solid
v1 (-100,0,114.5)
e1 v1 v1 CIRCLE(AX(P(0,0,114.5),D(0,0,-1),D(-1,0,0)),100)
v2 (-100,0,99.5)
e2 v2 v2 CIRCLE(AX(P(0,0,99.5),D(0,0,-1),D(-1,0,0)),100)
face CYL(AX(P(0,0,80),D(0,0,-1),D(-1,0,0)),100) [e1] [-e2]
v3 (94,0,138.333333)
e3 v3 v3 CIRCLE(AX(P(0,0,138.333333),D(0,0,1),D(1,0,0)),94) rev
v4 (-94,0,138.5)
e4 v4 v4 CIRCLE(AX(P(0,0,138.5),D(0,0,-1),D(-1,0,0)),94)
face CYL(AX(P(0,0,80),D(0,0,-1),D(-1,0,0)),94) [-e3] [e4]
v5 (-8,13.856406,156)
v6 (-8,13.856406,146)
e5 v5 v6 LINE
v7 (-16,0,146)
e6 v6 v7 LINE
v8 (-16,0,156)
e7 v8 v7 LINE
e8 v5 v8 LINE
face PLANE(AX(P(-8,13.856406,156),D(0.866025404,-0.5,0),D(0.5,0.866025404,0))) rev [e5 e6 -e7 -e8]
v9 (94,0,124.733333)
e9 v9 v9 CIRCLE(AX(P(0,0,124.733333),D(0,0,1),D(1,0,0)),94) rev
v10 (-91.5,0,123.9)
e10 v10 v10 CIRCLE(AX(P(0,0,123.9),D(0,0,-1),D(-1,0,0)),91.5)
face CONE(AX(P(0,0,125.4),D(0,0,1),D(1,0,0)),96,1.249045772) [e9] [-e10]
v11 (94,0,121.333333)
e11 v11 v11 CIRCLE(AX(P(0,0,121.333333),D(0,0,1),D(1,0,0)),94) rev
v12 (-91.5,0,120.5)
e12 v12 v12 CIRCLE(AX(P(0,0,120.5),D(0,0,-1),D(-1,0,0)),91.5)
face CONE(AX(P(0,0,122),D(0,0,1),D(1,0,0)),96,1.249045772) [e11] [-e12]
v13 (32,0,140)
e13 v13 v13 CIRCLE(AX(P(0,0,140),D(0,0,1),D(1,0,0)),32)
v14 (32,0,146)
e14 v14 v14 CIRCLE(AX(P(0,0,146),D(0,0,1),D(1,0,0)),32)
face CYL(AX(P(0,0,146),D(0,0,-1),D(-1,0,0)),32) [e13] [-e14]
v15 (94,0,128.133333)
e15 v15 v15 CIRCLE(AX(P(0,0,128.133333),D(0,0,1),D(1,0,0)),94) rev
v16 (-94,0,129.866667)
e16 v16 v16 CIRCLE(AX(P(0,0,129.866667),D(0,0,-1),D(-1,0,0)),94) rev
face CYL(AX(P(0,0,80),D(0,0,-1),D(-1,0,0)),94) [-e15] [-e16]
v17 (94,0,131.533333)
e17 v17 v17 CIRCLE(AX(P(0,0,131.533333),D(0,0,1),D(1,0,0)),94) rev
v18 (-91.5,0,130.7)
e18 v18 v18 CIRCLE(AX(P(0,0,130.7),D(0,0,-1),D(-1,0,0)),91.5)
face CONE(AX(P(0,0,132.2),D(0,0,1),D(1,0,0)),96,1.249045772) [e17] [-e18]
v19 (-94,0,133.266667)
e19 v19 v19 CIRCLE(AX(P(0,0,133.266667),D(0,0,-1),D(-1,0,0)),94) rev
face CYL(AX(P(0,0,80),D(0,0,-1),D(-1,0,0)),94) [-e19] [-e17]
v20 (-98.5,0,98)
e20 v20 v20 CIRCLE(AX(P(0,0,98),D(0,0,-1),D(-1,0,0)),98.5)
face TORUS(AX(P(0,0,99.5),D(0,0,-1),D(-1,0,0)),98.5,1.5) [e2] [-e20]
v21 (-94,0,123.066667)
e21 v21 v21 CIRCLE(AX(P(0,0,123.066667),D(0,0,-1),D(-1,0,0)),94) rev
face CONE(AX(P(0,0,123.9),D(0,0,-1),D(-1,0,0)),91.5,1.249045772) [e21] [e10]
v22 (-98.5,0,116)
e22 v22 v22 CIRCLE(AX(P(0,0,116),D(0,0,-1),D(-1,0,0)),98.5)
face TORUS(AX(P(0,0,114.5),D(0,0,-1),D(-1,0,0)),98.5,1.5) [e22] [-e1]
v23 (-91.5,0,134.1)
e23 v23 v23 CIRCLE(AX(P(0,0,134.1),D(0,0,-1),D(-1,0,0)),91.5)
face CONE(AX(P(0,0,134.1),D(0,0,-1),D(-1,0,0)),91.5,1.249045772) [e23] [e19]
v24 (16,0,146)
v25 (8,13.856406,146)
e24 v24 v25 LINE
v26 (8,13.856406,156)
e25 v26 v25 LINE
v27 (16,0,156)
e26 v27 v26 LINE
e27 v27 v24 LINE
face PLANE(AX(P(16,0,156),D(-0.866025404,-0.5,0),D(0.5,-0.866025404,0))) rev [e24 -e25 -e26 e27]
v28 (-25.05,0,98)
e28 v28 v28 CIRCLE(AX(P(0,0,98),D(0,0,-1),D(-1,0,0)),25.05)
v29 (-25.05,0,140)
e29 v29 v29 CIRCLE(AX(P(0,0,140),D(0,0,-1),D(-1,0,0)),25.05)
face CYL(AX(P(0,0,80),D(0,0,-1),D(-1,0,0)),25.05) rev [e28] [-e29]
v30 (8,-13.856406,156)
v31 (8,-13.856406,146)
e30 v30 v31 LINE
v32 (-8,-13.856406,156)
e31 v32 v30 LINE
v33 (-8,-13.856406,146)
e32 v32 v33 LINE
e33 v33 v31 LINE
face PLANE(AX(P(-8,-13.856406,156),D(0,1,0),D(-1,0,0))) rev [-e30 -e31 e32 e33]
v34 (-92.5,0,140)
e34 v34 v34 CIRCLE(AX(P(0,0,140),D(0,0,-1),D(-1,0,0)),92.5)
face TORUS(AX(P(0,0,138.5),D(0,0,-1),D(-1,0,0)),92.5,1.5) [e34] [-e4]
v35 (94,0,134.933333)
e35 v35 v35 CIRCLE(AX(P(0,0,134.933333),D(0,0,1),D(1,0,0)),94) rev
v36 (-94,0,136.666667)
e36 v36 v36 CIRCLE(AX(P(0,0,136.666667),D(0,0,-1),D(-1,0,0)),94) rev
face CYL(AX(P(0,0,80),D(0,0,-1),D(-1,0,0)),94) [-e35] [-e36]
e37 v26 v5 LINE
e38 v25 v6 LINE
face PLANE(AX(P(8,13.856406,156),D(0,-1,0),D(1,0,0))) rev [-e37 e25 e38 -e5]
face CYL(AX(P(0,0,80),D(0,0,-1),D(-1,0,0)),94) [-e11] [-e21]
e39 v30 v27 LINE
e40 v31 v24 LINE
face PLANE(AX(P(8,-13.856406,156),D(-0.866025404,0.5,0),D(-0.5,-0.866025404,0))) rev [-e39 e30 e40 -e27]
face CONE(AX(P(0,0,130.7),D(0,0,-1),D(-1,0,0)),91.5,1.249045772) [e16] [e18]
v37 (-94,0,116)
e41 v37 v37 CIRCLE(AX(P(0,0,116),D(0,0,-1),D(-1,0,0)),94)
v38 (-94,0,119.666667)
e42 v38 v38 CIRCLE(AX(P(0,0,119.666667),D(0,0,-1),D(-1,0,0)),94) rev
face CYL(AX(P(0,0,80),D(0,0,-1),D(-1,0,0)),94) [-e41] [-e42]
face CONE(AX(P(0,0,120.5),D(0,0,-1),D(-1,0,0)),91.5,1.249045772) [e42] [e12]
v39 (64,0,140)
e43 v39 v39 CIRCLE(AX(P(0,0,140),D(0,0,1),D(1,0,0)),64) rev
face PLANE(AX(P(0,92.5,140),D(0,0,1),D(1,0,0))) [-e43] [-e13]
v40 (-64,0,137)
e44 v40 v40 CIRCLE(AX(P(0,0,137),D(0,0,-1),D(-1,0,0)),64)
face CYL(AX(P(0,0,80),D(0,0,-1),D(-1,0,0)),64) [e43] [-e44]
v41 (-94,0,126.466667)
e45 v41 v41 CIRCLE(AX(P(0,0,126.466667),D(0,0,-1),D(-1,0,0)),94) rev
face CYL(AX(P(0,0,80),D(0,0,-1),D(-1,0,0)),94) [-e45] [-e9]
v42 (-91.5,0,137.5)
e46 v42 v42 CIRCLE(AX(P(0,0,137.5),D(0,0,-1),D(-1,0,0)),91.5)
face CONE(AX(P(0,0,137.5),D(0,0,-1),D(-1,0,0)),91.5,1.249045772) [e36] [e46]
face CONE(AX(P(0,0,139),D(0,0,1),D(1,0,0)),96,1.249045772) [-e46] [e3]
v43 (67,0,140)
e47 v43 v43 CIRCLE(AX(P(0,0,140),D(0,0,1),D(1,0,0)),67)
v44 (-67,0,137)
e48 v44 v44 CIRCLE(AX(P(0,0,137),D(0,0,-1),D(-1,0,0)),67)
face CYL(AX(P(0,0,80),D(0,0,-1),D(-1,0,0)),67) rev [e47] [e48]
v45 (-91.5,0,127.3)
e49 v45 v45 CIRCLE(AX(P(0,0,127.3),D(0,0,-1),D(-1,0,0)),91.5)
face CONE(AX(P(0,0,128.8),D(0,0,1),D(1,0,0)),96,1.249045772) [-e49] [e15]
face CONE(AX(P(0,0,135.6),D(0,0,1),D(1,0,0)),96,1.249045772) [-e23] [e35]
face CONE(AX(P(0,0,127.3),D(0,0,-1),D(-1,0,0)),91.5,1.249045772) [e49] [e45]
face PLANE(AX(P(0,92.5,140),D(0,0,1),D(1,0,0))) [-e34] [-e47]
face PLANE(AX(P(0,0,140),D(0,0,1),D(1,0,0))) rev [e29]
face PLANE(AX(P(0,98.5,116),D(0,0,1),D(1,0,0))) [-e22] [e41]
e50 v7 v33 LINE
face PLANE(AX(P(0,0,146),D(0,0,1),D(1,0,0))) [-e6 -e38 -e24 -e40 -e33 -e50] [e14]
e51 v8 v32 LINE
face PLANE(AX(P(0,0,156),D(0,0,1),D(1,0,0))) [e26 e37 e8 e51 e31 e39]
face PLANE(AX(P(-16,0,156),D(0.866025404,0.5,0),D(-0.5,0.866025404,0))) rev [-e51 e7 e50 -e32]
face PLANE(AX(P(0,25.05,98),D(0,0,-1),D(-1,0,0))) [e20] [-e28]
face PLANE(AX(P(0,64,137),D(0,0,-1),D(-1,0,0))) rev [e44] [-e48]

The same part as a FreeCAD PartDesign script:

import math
import FreeCAD as App
import Part
import Sketcher
Q = App.Units.Quantity

doc = App.newDocument("Part")
body = doc.addObject("PartDesign::Body", "Body")

sketch1 = body.newObject("Sketcher::SketchObject", "Sketch")
sketch1.AttachmentSupport = (doc.getObject("YZ_Plane"), [""])
sketch1.MapMode = "FlatFace"
sketch1.addGeometry([
    Part.LineSegment(App.Vector(25.05, 98, 0), App.Vector(98.5, 98, 0)),
    Part.ArcOfCircle(Part.Circle(App.Vector(98.5, 99.5, 0), App.Vector(0, 0, 1), 1.5), math.radians(-90), math.radians(0)),
    Part.LineSegment(App.Vector(100, 99.5, 0), App.Vector(100, 114.5, 0)),
    Part.ArcOfCircle(Part.Circle(App.Vector(98.5, 114.5, 0), App.Vector(0, 0, 1), 1.5), math.radians(0), math.radians(90)),
    Part.LineSegment(App.Vector(98.5, 116, 0), App.Vector(94, 116, 0)),
    Part.LineSegment(App.Vector(94, 116, 0), App.Vector(94, 138.5, 0)),
    Part.ArcOfCircle(Part.Circle(App.Vector(92.5, 138.5, 0), App.Vector(0, 0, 1), 1.5), math.radians(0), math.radians(90)),
    Part.LineSegment(App.Vector(92.5, 140, 0), App.Vector(25.05, 140, 0)),
    Part.LineSegment(App.Vector(25.05, 140, 0), App.Vector(25.05, 98, 0)),
], False)
sketch1.addConstraint([
    Sketcher.Constraint("Tangent", 0, 2, 1, 1),
    Sketcher.Constraint("Tangent", 1, 2, 2, 1),
    Sketcher.Constraint("Tangent", 2, 2, 3, 1),
    Sketcher.Constraint("Tangent", 3, 2, 4, 1),
    Sketcher.Constraint("Coincident", 4, 2, 5, 1),
    Sketcher.Constraint("Tangent", 5, 2, 6, 1),
    Sketcher.Constraint("Tangent", 6, 2, 7, 1),
    Sketcher.Constraint("Coincident", 7, 2, 8, 1),
    Sketcher.Constraint("Coincident", 8, 2, 0, 1),
    Sketcher.Constraint("Horizontal", 0),
    Sketcher.Constraint("Vertical", 2),
    Sketcher.Constraint("Horizontal", 4),
    Sketcher.Constraint("Vertical", 5),
    Sketcher.Constraint("Horizontal", 7),
    Sketcher.Constraint("Vertical", 8),
    Sketcher.Constraint("Equal", 1, 3),
    Sketcher.Constraint("Equal", 3, 6),
    Sketcher.Constraint("Radius", 1, 1.5),
    Sketcher.Constraint("DistanceY", 2, 1, 2, 2, 15.0),
    Sketcher.Constraint("DistanceY", 8, 2, 8, 1, 42.0),
    Sketcher.Constraint("DistanceX", 4, 2, 4, 1, 4.5),
    Sketcher.Constraint("DistanceY", -1, 1, 0, 2, 98.0),
    Sketcher.Constraint("DistanceX", -1, 1, 1, 2, 100.0),
    Sketcher.Constraint("DistanceX", 0, 1, 0, 2, 73.45),
])
revolution = body.newObject("PartDesign::Revolution", "Revolution")
revolution.Profile = sketch1
revolution.ReferenceAxis = (sketch1, ["V_Axis"])
revolution.Angle = 360

sketch2 = body.newObject("Sketcher::SketchObject", "Sketch001")
sketch2.AttachmentSupport = (doc.getObject("YZ_Plane"), [""])
sketch2.MapMode = "FlatFace"
sketch2.addGeometry([
    Part.LineSegment(App.Vector(91.5, 120.5, 0), App.Vector(96, 119, 0)),
    Part.LineSegment(App.Vector(96, 119, 0), App.Vector(96, 122, 0)),
    Part.LineSegment(App.Vector(96, 122, 0), App.Vector(91.5, 120.5, 0)),
    Part.LineSegment(App.Vector(91.5, 123.9, 0), App.Vector(96, 122.4, 0)),
    Part.LineSegment(App.Vector(96, 122.4, 0), App.Vector(96, 125.4, 0)),
    Part.LineSegment(App.Vector(96, 125.4, 0), App.Vector(91.5, 123.9, 0)),
    Part.LineSegment(App.Vector(91.5, 127.3, 0), App.Vector(96, 125.8, 0)),
    Part.LineSegment(App.Vector(96, 125.8, 0), App.Vector(96, 128.8, 0)),
    Part.LineSegment(App.Vector(96, 128.8, 0), App.Vector(91.5, 127.3, 0)),
    Part.LineSegment(App.Vector(91.5, 130.7, 0), App.Vector(96, 129.2, 0)),
    Part.LineSegment(App.Vector(96, 129.2, 0), App.Vector(96, 132.2, 0)),
    Part.LineSegment(App.Vector(96, 132.2, 0), App.Vector(91.5, 130.7, 0)),
    Part.LineSegment(App.Vector(91.5, 134.1, 0), App.Vector(96, 132.6, 0)),
    Part.LineSegment(App.Vector(96, 132.6, 0), App.Vector(96, 135.6, 0)),
    Part.LineSegment(App.Vector(96, 135.6, 0), App.Vector(91.5, 134.1, 0)),
    Part.LineSegment(App.Vector(91.5, 137.5, 0), App.Vector(96, 136, 0)),
    Part.LineSegment(App.Vector(96, 136, 0), App.Vector(96, 139, 0)),
    Part.LineSegment(App.Vector(96, 139, 0), App.Vector(91.5, 137.5, 0)),
], False)
sketch2.addConstraint([
    Sketcher.Constraint("Coincident", 0, 2, 1, 1),
    Sketcher.Constraint("Coincident", 1, 2, 2, 1),
    Sketcher.Constraint("Coincident", 2, 2, 0, 1),
    Sketcher.Constraint("Coincident", 3, 2, 4, 1),
    Sketcher.Constraint("Coincident", 4, 2, 5, 1),
    Sketcher.Constraint("Coincident", 5, 2, 3, 1),
    Sketcher.Constraint("Coincident", 6, 2, 7, 1),
    Sketcher.Constraint("Coincident", 7, 2, 8, 1),
    Sketcher.Constraint("Coincident", 8, 2, 6, 1),
    Sketcher.Constraint("Coincident", 9, 2, 10, 1),
    Sketcher.Constraint("Coincident", 10, 2, 11, 1),
    Sketcher.Constraint("Coincident", 11, 2, 9, 1),
    Sketcher.Constraint("Coincident", 12, 2, 13, 1),
    Sketcher.Constraint("Coincident", 13, 2, 14, 1),
    Sketcher.Constraint("Coincident", 14, 2, 12, 1),
    Sketcher.Constraint("Coincident", 15, 2, 16, 1),
    Sketcher.Constraint("Coincident", 16, 2, 17, 1),
    Sketcher.Constraint("Coincident", 17, 2, 15, 1),
    Sketcher.Constraint("Vertical", 1),
    Sketcher.Constraint("Vertical", 4),
    Sketcher.Constraint("Vertical", 7),
    Sketcher.Constraint("Vertical", 10),
    Sketcher.Constraint("Vertical", 13),
    Sketcher.Constraint("Vertical", 16),
    Sketcher.Constraint("Parallel", 0, 3),
    Sketcher.Constraint("Parallel", 2, 5),
    Sketcher.Constraint("Parallel", 3, 6),
    Sketcher.Constraint("Parallel", 5, 8),
    Sketcher.Constraint("Parallel", 6, 9),
    Sketcher.Constraint("Parallel", 8, 11),
    Sketcher.Constraint("Parallel", 9, 12),
    Sketcher.Constraint("Parallel", 11, 14),
    Sketcher.Constraint("Parallel", 12, 15),
    Sketcher.Constraint("Parallel", 14, 17),
    Sketcher.Constraint("Vertical", 1, 2, 3, 2),
    Sketcher.Constraint("Vertical", 2, 2, 5, 2),
    Sketcher.Constraint("Vertical", 4, 2, 6, 2),
    Sketcher.Constraint("Vertical", 5, 2, 8, 2),
    Sketcher.Constraint("Vertical", 7, 2, 9, 2),
    Sketcher.Constraint("Vertical", 8, 2, 11, 2),
    Sketcher.Constraint("Vertical", 10, 2, 12, 2),
    Sketcher.Constraint("Vertical", 11, 2, 14, 2),
    Sketcher.Constraint("Vertical", 13, 2, 15, 2),
    Sketcher.Constraint("Vertical", 14, 2, 17, 2),
    Sketcher.Constraint("Equal", 0, 2),
    Sketcher.Constraint("DistanceY", 1, 1, 1, 2, 3.0),
    Sketcher.Constraint("DistanceX", -1, 1, 0, 2, 96.0),
    Sketcher.Constraint("DistanceY", -1, 1, 0, 2, 119.0),
    Sketcher.Constraint("DistanceY", -1, 1, 15, 2, 136.0),
    Sketcher.Constraint("DistanceX", -1, 1, 2, 2, 91.5),
    Sketcher.Constraint("DistanceY", -1, 1, 3, 2, 122.4),
    Sketcher.Constraint("DistanceY", -1, 1, 6, 2, 125.8),
    Sketcher.Constraint("DistanceY", -1, 1, 9, 2, 129.2),
    Sketcher.Constraint("DistanceY", -1, 1, 12, 2, 132.6),
])
groove = body.newObject("PartDesign::Groove", "Groove")
groove.Profile = sketch2
groove.ReferenceAxis = (sketch2, ["V_Axis"])
groove.Angle = 360

sketch3 = body.newObject("Sketcher::SketchObject", "Sketch002")
sketch3.AttachmentSupport = (doc.getObject("YZ_Plane"), [""])
sketch3.MapMode = "FlatFace"
sketch3.addGeometry([
    Part.LineSegment(App.Vector(67, 141, 0), App.Vector(64, 141, 0)),
    Part.LineSegment(App.Vector(64, 141, 0), App.Vector(64, 137, 0)),
    Part.LineSegment(App.Vector(64, 137, 0), App.Vector(67, 137, 0)),
    Part.LineSegment(App.Vector(67, 137, 0), App.Vector(67, 141, 0)),
], False)
sketch3.addConstraint([
    Sketcher.Constraint("Coincident", 0, 2, 1, 1),
    Sketcher.Constraint("Coincident", 1, 2, 2, 1),
    Sketcher.Constraint("Coincident", 2, 2, 3, 1),
    Sketcher.Constraint("Coincident", 3, 2, 0, 1),
    Sketcher.Constraint("Horizontal", 0),
    Sketcher.Constraint("Vertical", 1),
    Sketcher.Constraint("Horizontal", 2),
    Sketcher.Constraint("Vertical", 3),
    Sketcher.Constraint("DistanceX", 0, 2, 0, 1, 3.0),
    Sketcher.Constraint("DistanceY", 1, 2, 1, 1, 4.0),
    Sketcher.Constraint("DistanceX", -1, 1, 0, 2, 64.0),
    Sketcher.Constraint("DistanceY", -1, 1, 0, 2, 141.0),
])
groove2 = body.newObject("PartDesign::Groove", "Groove001")
groove2.Profile = sketch3
groove2.ReferenceAxis = (sketch3, ["V_Axis"])
groove2.Angle = 360

sketch4 = body.newObject("Sketcher::SketchObject", "Sketch003")
sketch4.AttachmentSupport = (doc.getObject("XY_Plane"), [""])
sketch4.MapMode = "FlatFace"
sketch4.AttachmentOffset = App.Placement(App.Vector(0, 0, 140), App.Rotation())
sketch4.addGeometry(Part.Circle(App.Vector(0, 0, 0), App.Vector(0, 0, 1), 32), False)
sketch4.addConstraint([
    Sketcher.Constraint("Coincident", 0, 3, -1, 1),
    Sketcher.Constraint("Diameter", 0, 64.0),
])
pad1 = body.newObject("PartDesign::Pad", "Pad")
pad1.Profile = sketch4
pad1.Length = 6

sketch5 = body.newObject("Sketcher::SketchObject", "Sketch004")
sketch5.AttachmentSupport = (doc.getObject("XY_Plane"), [""])
sketch5.MapMode = "FlatFace"
sketch5.AttachmentOffset = App.Placement(App.Vector(0, 0, 146), App.Rotation())
sketch5.addGeometry([
    Part.LineSegment(App.Vector(16, 0, 0), App.Vector(8, 13.856406, 0)),
    Part.LineSegment(App.Vector(8, 13.856406, 0), App.Vector(-8, 13.856406, 0)),
    Part.LineSegment(App.Vector(-8, 13.856406, 0), App.Vector(-16, 0, 0)),
    Part.LineSegment(App.Vector(-16, 0, 0), App.Vector(-8, -13.856406, 0)),
    Part.LineSegment(App.Vector(-8, -13.856406, 0), App.Vector(8, -13.856406, 0)),
    Part.LineSegment(App.Vector(8, -13.856406, 0), App.Vector(16, 0, 0)),
], False)
sketch5.addConstraint([
    Sketcher.Constraint("Coincident", 0, 2, 1, 1),
    Sketcher.Constraint("Coincident", 1, 2, 2, 1),
    Sketcher.Constraint("Coincident", 2, 2, 3, 1),
    Sketcher.Constraint("Coincident", 3, 2, 4, 1),
    Sketcher.Constraint("Coincident", 4, 2, 5, 1),
    Sketcher.Constraint("Coincident", 5, 2, 0, 1),
    Sketcher.Constraint("Horizontal", 1),
    Sketcher.Constraint("Horizontal", 4),
    Sketcher.Constraint("Symmetric", 0, 2, 3, 2, -1, 1),
    Sketcher.Constraint("Symmetric", 2, 2, 5, 2, -1, 1),
    Sketcher.Constraint("PointOnObject", 2, 2, -1),
    Sketcher.Constraint("Parallel", 2, 5),
    Sketcher.Constraint("Vertical", 1, 2, 3, 2),
    Sketcher.Constraint("DistanceX", 1, 2, 1, 1, 16.0),
    Sketcher.Constraint("Angle", 0, Q("120 deg")),
    Sketcher.Constraint("Distance", 0, 16.0),
])
pad2 = body.newObject("PartDesign::Pad", "Pad001")
pad2.Profile = sketch5
pad2.Length = 10

doc.recompute()
